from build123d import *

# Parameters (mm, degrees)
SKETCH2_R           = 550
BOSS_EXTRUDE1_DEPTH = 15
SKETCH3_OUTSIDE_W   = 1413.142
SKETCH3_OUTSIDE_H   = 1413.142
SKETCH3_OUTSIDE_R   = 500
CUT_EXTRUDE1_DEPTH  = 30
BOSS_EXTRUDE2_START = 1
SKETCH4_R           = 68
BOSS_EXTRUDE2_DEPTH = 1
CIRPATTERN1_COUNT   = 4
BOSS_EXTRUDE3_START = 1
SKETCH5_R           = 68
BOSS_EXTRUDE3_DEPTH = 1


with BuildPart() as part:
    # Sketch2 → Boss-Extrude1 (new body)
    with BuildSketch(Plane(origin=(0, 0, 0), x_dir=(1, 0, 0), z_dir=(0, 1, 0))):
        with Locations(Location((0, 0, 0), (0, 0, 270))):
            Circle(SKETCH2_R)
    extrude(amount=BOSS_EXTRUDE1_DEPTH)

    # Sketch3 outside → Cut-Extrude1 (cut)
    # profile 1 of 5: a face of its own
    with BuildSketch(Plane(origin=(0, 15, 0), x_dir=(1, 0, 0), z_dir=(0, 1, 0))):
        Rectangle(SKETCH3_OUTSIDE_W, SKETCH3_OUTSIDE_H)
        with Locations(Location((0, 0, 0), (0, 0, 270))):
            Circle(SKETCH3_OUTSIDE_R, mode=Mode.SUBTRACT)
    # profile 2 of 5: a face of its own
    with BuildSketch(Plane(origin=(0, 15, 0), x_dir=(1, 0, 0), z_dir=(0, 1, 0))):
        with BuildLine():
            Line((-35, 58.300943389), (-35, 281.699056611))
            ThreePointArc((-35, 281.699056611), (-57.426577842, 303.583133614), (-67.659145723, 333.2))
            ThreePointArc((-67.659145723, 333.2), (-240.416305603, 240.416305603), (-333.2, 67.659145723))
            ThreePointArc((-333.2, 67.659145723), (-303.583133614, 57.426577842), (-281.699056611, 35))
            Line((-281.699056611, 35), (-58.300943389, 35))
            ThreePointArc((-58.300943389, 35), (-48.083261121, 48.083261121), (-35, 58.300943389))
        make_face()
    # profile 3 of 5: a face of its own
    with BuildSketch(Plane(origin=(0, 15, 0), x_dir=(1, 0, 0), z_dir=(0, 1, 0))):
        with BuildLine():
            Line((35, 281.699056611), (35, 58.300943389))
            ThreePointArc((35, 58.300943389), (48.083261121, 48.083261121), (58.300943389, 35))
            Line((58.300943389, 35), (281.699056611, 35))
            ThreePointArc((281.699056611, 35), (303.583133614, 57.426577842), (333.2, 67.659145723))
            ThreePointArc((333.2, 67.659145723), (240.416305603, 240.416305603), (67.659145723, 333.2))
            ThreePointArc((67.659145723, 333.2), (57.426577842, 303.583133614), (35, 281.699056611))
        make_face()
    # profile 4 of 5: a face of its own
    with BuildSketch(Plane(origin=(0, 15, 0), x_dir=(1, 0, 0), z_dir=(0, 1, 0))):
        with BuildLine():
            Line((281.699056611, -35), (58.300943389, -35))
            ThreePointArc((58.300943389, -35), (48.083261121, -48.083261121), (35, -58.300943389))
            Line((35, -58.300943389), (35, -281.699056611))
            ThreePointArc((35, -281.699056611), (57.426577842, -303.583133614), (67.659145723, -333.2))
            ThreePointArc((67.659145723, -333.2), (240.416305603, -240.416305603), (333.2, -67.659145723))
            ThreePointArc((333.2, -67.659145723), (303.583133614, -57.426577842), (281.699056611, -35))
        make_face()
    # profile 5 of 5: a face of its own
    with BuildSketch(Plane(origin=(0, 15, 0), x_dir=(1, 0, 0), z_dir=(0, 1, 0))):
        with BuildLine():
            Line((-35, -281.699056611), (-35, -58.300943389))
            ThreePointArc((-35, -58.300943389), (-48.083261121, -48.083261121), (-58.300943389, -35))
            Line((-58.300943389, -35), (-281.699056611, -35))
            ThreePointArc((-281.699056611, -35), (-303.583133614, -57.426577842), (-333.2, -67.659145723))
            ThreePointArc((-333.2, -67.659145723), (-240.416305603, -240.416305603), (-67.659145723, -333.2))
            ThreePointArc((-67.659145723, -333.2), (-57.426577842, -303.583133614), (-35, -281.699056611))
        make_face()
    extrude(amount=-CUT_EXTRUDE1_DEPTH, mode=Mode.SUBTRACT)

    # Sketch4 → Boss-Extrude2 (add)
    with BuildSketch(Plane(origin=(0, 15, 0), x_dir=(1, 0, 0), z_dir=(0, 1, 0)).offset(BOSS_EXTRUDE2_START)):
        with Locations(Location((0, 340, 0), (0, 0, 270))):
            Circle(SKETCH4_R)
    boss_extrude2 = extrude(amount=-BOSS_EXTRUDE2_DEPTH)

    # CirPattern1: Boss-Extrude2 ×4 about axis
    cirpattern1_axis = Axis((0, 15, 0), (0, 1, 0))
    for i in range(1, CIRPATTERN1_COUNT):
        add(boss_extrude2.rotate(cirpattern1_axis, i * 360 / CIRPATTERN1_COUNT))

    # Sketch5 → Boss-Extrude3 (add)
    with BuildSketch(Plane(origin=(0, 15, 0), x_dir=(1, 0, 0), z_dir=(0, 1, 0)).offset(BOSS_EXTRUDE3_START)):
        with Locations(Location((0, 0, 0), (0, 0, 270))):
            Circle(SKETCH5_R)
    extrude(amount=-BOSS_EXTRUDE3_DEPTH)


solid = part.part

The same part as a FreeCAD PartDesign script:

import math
import FreeCAD as App
import Part
import Sketcher


def add_polygon(sketch, points):
    """Adds a closed chain of lines whose ends are joined by coincident constraints."""
    first, n = sketch.GeometryCount, len(points)
    for a, b in zip(points, points[1:] + points[:1]):
        sketch.addGeometry(Part.LineSegment(App.Vector(*a, 0), App.Vector(*b, 0)), False)
    for i in range(n):
        sketch.addConstraint(Sketcher.Constraint("Coincident", first + i, 2, first + (i + 1) % n, 1))

doc = App.newDocument("Part")
body = doc.addObject("PartDesign::Body", "Body")

# Sketch on XZ plane
sketch1 = body.newObject("Sketcher::SketchObject", "Sketch")
sketch1.AttachmentSupport = (doc.getObject("XZ_Plane"), [""])
sketch1.MapMode = "FlatFace"
sketch1.addGeometry(Part.Circle(App.Vector(0, 0, 0), App.Vector(0, 0, 1), 550), False)
sketch1.addConstraint([
    Sketcher.Constraint("Coincident", 0, 3, -1, 1),
    Sketcher.Constraint("Diameter", 0, 1100.0),
])
pad1 = body.newObject("PartDesign::Pad", "Pad")
pad1.Profile = sketch1
pad1.Length = 15
pad1.Reversed = True

# Sketch on XZ plane
sketch2 = body.newObject("Sketcher::SketchObject", "Sketch001")
sketch2.AttachmentSupport = (doc.getObject("XZ_Plane"), [""])
sketch2.MapMode = "FlatFace"
sketch2.AttachmentOffset = App.Placement(App.Vector(0, 0, -15), App.Rotation())
add_polygon(sketch2, [(-706.571, -706.571), (-706.571, 706.571), (706.571, 706.571), (706.571, -706.571)])  # lines 0-3
sketch2.addGeometry(Part.Circle(App.Vector(0, 0, 0), App.Vector(0, 0, 1), 500), False)  # 4
sketch2.addGeometry(Part.LineSegment(App.Vector(-35, -58.300943, 0), App.Vector(-35, -281.699057, 0)), False)  # 5
sketch2.addGeometry(Part.ArcOfCircle(Part.Circle(App.Vector(0, -340, 0), App.Vector(0, 0, 1), 68), math.radians(120.977798), math.radians(174.26083)), False)  # 6
sketch2.addGeometry(Part.ArcOfCircle(Part.Circle(App.Vector(0, 0, 0), App.Vector(0, 0, 1), 340), math.radians(-168.521659), math.radians(-101.478341)), False)  # 7
sketch2.addGeometry(Part.ArcOfCircle(Part.Circle(App.Vector(-340, 0, 0), App.Vector(0, 0, 1), 68), math.radians(-84.26083), math.radians(-30.977798)), False)  # 8
sketch2.addGeometry(Part.LineSegment(App.Vector(-281.699057, -35, 0), App.Vector(-58.300943, -35, 0)), False)  # 9
sketch2.addGeometry(Part.ArcOfCircle(Part.Circle(App.Vector(0, 0, 0), App.Vector(0, 0, 1), 68), math.radians(-149.022202), math.radians(-120.977798)), False)  # 10
sketch2.addGeometry(Part.LineSegment(App.Vector(35, -281.699057, 0), App.Vector(35, -58.300943, 0)), False)  # 11
sketch2.addGeometry(Part.ArcOfCircle(Part.Circle(App.Vector(0, 0, 0), App.Vector(0, 0, 1), 68), math.radians(-59.022202), math.radians(-30.977798)), False)  # 12
sketch2.addGeometry(Part.LineSegment(App.Vector(58.300943, -35, 0), App.Vector(281.699057, -35, 0)), False)  # 13
sketch2.addGeometry(Part.ArcOfCircle(Part.Circle(App.Vector(340, 0, 0), App.Vector(0, 0, 1), 68), math.radians(-149.022202), math.radians(-95.73917)), False)  # 14
sketch2.addGeometry(Part.ArcOfCircle(Part.Circle(App.Vector(0, 0, 0), App.Vector(0, 0, 1), 340), math.radians(-78.521659), math.radians(-11.478341)), False)  # 15
sketch2.addGeometry(Part.ArcOfCircle(Part.Circle(App.Vector(0, -340, 0), App.Vector(0, 0, 1), 68), math.radians(5.73917), math.radians(59.022202)), False)  # 16
sketch2.addGeometry(Part.LineSegment(App.Vector(281.699057, 35, 0), App.Vector(58.300943, 35, 0)), False)  # 17
sketch2.addGeometry(Part.ArcOfCircle(Part.Circle(App.Vector(0, 0, 0), App.Vector(0, 0, 1), 68), math.radians(30.977798), math.radians(59.022202)), False)  # 18
sketch2.addGeometry(Part.LineSegment(App.Vector(35, 58.300943, 0), App.Vector(35, 281.699057, 0)), False)  # 19
sketch2.addGeometry(Part.ArcOfCircle(Part.Circle(App.Vector(0, 340, 0), App.Vector(0, 0, 1), 68), math.radians(-59.022202), math.radians(-5.73917)), False)  # 20
sketch2.addGeometry(Part.ArcOfCircle(Part.Circle(App.Vector(0, 0, 0), App.Vector(0, 0, 1), 340), math.radians(11.478341), math.radians(78.521659)), False)  # 21
sketch2.addGeometry(Part.ArcOfCircle(Part.Circle(App.Vector(340, 0, 0), App.Vector(0, 0, 1), 68), math.radians(95.73917), math.radians(149.022202)), False)  # 22
sketch2.addGeometry(Part.LineSegment(App.Vector(-35, 281.699057, 0), App.Vector(-35, 58.300943, 0)), False)  # 23
sketch2.addGeometry(Part.ArcOfCircle(Part.Circle(App.Vector(0, 0, 0), App.Vector(0, 0, 1), 68), math.radians(120.977798), math.radians(149.022202)), False)  # 24
sketch2.addGeometry(Part.LineSegment(App.Vector(-58.300943, 35, 0), App.Vector(-281.699057, 35, 0)), False)  # 25
sketch2.addGeometry(Part.ArcOfCircle(Part.Circle(App.Vector(-340, 0, 0), App.Vector(0, 0, 1), 68), math.radians(30.977798), math.radians(84.26083)), False)  # 26
sketch2.addGeometry(Part.ArcOfCircle(Part.Circle(App.Vector(0, 0, 0), App.Vector(0, 0, 1), 340), math.radians(101.478341), math.radians(168.521659)), False)  # 27
sketch2.addGeometry(Part.ArcOfCircle(Part.Circle(App.Vector(0, 340, 0), App.Vector(0, 0, 1), 68), math.radians(-174.26083), math.radians(-120.977798)), False)  # 28
sketch2.addConstraint([
    Sketcher.Constraint("Coincident", 5, 2, 6, 1),
    Sketcher.Constraint("Coincident", 6, 2, 7, 2),
    Sketcher.Constraint("Coincident", 7, 1, 8, 1),
    Sketcher.Constraint("Coincident", 8, 2, 9, 1),
    Sketcher.Constraint("Coincident", 9, 2, 10, 1),
    Sketcher.Constraint("Coincident", 10, 2, 5, 1),
    Sketcher.Constraint("Coincident", 11, 2, 12, 1),
    Sketcher.Constraint("Coincident", 12, 2, 13, 1),
    Sketcher.Constraint("Coincident", 13, 2, 14, 1),
    Sketcher.Constraint("Coincident", 14, 2, 15, 2),
    Sketcher.Constraint("Coincident", 15, 1, 16, 1),
    Sketcher.Constraint("Coincident", 16, 2, 11, 1),
    Sketcher.Constraint("Coincident", 17, 2, 18, 1),
    Sketcher.Constraint("Coincident", 18, 2, 19, 1),
    Sketcher.Constraint("Coincident", 19, 2, 20, 1),
    Sketcher.Constraint("Coincident", 20, 2, 21, 2),
    Sketcher.Constraint("Coincident", 21, 1, 22, 1),
    Sketcher.Constraint("Coincident", 22, 2, 17, 1),
    Sketcher.Constraint("Coincident", 23, 2, 24, 1),
    Sketcher.Constraint("Coincident", 24, 2, 25, 1),
    Sketcher.Constraint("Coincident", 25, 2, 26, 1),
    Sketcher.Constraint("Coincident", 26, 2, 27, 2),
    Sketcher.Constraint("Coincident", 27, 1, 28, 1),
    Sketcher.Constraint("Coincident", 28, 2, 23, 1),
    Sketcher.Constraint("Vertical", 0),
    Sketcher.Constraint("Horizontal", 1),
    Sketcher.Constraint("Vertical", 2),
    Sketcher.Constraint("Horizontal", 3),
    Sketcher.Constraint("Vertical", 5),
    Sketcher.Constraint("Horizontal", 9),
    Sketcher.Constraint("Vertical", 11),
    Sketcher.Constraint("Horizontal", 13),
    Sketcher.Constraint("Horizontal", 17),
    Sketcher.Constraint("Vertical", 19),
    Sketcher.Constraint("Vertical", 23),
    Sketcher.Constraint("Horizontal", 25),
    Sketcher.Constraint("Coincident", 4, 3, -1, 1),
    Sketcher.Constraint("Coincident", 7, 3, -1, 1),
    Sketcher.Constraint("Coincident", 10, 3, -1, 1),
    Sketcher.Constraint("Coincident", 12, 3, -1, 1),
    Sketcher.Constraint("Coincident", 15, 3, -1, 1),
    Sketcher.Constraint("Coincident", 18, 3, -1, 1),
    Sketcher.Constraint("Coincident", 21, 3, -1, 1),
    Sketcher.Constraint("Coincident", 24, 3, -1, 1),
    Sketcher.Constraint("Coincident", 27, 3, -1, 1),
    Sketcher.Constraint("Coincident", 16, 3, 6, 3),
    Sketcher.Constraint("Coincident", 22, 3, 14, 3),
    Sketcher.Constraint("Coincident", 26, 3, 8, 3),
    Sketcher.Constraint("Coincident", 28, 3, 20, 3),
    Sketcher.Constraint("Equal", 6, 8),
    Sketcher.Constraint("Equal", 8, 10),
    Sketcher.Constraint("Equal", 10, 12),
    Sketcher.Constraint("Equal", 12, 14),
    Sketcher.Constraint("Equal", 7, 15),
    Sketcher.Constraint("Equal", 14, 16),
    Sketcher.Constraint("Equal", 16, 18),
    Sketcher.Constraint("Equal", 18, 20),
    Sketcher.Constraint("Equal", 15, 21),
    Sketcher.Constraint("Equal", 20, 22),
    Sketcher.Constraint("Equal", 22, 24),
    Sketcher.Constraint("Equal", 24, 26),
    Sketcher.Constraint("Equal", 21, 27),
    Sketcher.Constraint("Equal", 26, 28),
    Sketcher.Constraint("Symmetric", 8, 3, 14, 3, -1, 1),
    Sketcher.Constraint("Symmetric", 6, 3, 20, 3, -1, 1),
    Sketcher.Constraint("Symmetric", 0, 2, 2, 2, -1, 1),
    Sketcher.Constraint("Symmetric", 8, 2, 13, 2, -2),
    Sketcher.Constraint("Symmetric", 5, 2, 16, 2, -2),
    Sketcher.Constraint("Horizontal", 18, 2, 23, 2),
    Sketcher.Constraint("Horizontal", 22, 2, 24, 2),
    Sketcher.Constraint("Vertical", 12, 2, 17, 2),
    Sketcher.Constraint("Vertical", 16, 2, 18, 2),
    Sketcher.Constraint("Equal", 3, 0),
    Sketcher.Constraint("Equal", 25, 5),
    Sketcher.Constraint("Diameter", 4, 1000.0),
    Sketcher.Constraint("Radius", 6, 68.0),
    Sketcher.Constraint("Radius", 7, 340.0),
    Sketcher.Constraint("DistanceY", 6, 3, -1, 1, 340.0),
    Sketcher.Constraint("DistanceX", 8, 3, -1, 1, 340.0),
    Sketcher.Constraint("DistanceX", 5, 2, -1, 1, 35.0),
    Sketcher.Constraint("DistanceX", 1, 1, 1, 2, 1413.142),
])
pocket1 = body.newObject("PartDesign::Pocket", "Pocket")
pocket1.Profile = sketch2
pocket1.Length = 30
pocket1.Reversed = True

# Sketch on XZ plane
sketch3 = body.newObject("Sketcher::SketchObject", "Sketch002")
sketch3.AttachmentSupport = (doc.getObject("XZ_Plane"), [""])
sketch3.MapMode = "FlatFace"
sketch3.AttachmentOffset = App.Placement(App.Vector(0, 0, -16), App.Rotation())
sketch3.addGeometry(Part.Circle(App.Vector(0, -340, 0), App.Vector(0, 0, 1), 68), False)
sketch3.addConstraint([
    Sketcher.Constraint("PointOnObject", 0, 3, -2),
    Sketcher.Constraint("Diameter", 0, 136.0),
    Sketcher.Constraint("DistanceY", 0, 3, -1, 1, 340.0),
])
pad2 = body.newObject("PartDesign::Pad", "Pad001")
pad2.Profile = sketch3
pad2.Length = 1
doc.recompute()

polarpattern = body.newObject("PartDesign::PolarPattern", "PolarPattern")
polarpattern.Originals = [pad2]
polarpattern.Axis = (doc.getObject("Y_Axis"), [""])
polarpattern.Angle = 360
polarpattern.Occurrences = 4
body.Tip = polarpattern

# Sketch on XZ plane
sketch4 = body.newObject("Sketcher::SketchObject", "Sketch003")
sketch4.AttachmentSupport = (doc.getObject("XZ_Plane"), [""])
sketch4.MapMode = "FlatFace"
sketch4.AttachmentOffset = App.Placement(App.Vector(0, 0, -16), App.Rotation())
sketch4.addGeometry(Part.Circle(App.Vector(0, 0, 0), App.Vector(0, 0, 1), 68), False)
sketch4.addConstraint([
    Sketcher.Constraint("Coincident", 0, 3, -1, 1),
    Sketcher.Constraint("Diameter", 0, 136.0),
])
pad3 = body.newObject("PartDesign::Pad", "Pad002")
pad3.Profile = sketch4
pad3.Length = 1

doc.recompute()
